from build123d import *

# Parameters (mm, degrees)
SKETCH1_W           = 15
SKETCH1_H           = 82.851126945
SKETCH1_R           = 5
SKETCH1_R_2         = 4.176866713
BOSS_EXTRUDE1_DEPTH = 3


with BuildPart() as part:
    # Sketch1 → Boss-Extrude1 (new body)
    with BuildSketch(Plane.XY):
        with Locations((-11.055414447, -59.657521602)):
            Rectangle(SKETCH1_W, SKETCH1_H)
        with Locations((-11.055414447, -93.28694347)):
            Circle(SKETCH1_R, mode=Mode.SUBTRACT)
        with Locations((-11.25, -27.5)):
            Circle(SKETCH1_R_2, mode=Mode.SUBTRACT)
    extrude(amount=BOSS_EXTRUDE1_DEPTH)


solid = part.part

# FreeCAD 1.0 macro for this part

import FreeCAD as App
import Part
import Sketcher

V = App.Vector
Q = App.Units.Quantity


def add_polygon(sketch, points):
    """Adds a closed chain of lines whose ends are joined by coincident constraints."""
    first, n = sketch.GeometryCount, len(points)
    for a, b in zip(points, points[1:] + points[:1]):
        sketch.addGeometry(Part.LineSegment(App.Vector(*a, 0), App.Vector(*b, 0)), False)
    for i in range(n):
        sketch.addConstraint(Sketcher.Constraint("Coincident", first + i, 2, first + (i + 1) % n, 1))

doc = App.newDocument("Part")
body = doc.addObject("PartDesign::Body", "Body")

# Sketch on XY plane
sketch1 = body.newObject("Sketcher::SketchObject", "Sketch")
sketch1.AttachmentSupport = (doc.getObject("XY_Plane"), [""])
sketch1.MapMode = "FlatFace"
add_polygon(sketch1, [(-18.6, -18.2), (-18.6, -101.1), (-3.6, -101.1), (-3.6, -18.2)])  # lines 0-3
sketch1.addGeometry(Part.Circle(V(-11.1, -93.3, 0), V(0, 0, 1), 5), False)  # 4
sketch1.addGeometry(Part.Circle(V(-11.2, -27.5, 0), V(0, 0, 1), 4.2), False)  # 5
sketch1.addConstraint(Sketcher.Constraint("Vertical", 0))
sketch1.addConstraint(Sketcher.Constraint("Horizontal", 1))
sketch1.addConstraint(Sketcher.Constraint("Vertical", 2))
sketch1.addConstraint(Sketcher.Constraint("Horizontal", 3))
sketch1.addConstraint(Sketcher.Constraint("Diameter", 4, Q("10 mm")))
sketch1.addConstraint(Sketcher.Constraint("DistanceX", 1, 1, 1, 2, Q("15 mm")))
sketch1.addConstraint(Sketcher.Constraint("DistanceY", 5, 3, -1, 1, Q("27.5 mm")))
sketch1.addConstraint(Sketcher.Constraint("DistanceX", 0, 2, 4, 3, Q("7.5 mm")))
sketch1.addConstraint(Sketcher.Constraint("DistanceX", 5, 3, -1, 1, Q("11.25 mm")))
sketch1.addConstraint(Sketcher.Constraint("Diameter", 5, Q("8.353733 mm")))
sketch1.addConstraint(Sketcher.Constraint("DistanceY", 0, 2, 0, 1, Q("82.851127 mm")))
sketch1.addConstraint(Sketcher.Constraint("DistanceY", 2, 2, -1, 1, Q("18.231958 mm")))
sketch1.addConstraint(Sketcher.Constraint("DistanceY", 0, 2, 4, 3, Q("7.796142 mm")))
sketch1.addConstraint(Sketcher.Constraint("DistanceX", 4, 3, -1, 1, Q("11.055414 mm")))
pad1 = body.newObject("PartDesign::Pad", "Pad")
pad1.Profile = sketch1
pad1.Length = 3

doc.recompute()
